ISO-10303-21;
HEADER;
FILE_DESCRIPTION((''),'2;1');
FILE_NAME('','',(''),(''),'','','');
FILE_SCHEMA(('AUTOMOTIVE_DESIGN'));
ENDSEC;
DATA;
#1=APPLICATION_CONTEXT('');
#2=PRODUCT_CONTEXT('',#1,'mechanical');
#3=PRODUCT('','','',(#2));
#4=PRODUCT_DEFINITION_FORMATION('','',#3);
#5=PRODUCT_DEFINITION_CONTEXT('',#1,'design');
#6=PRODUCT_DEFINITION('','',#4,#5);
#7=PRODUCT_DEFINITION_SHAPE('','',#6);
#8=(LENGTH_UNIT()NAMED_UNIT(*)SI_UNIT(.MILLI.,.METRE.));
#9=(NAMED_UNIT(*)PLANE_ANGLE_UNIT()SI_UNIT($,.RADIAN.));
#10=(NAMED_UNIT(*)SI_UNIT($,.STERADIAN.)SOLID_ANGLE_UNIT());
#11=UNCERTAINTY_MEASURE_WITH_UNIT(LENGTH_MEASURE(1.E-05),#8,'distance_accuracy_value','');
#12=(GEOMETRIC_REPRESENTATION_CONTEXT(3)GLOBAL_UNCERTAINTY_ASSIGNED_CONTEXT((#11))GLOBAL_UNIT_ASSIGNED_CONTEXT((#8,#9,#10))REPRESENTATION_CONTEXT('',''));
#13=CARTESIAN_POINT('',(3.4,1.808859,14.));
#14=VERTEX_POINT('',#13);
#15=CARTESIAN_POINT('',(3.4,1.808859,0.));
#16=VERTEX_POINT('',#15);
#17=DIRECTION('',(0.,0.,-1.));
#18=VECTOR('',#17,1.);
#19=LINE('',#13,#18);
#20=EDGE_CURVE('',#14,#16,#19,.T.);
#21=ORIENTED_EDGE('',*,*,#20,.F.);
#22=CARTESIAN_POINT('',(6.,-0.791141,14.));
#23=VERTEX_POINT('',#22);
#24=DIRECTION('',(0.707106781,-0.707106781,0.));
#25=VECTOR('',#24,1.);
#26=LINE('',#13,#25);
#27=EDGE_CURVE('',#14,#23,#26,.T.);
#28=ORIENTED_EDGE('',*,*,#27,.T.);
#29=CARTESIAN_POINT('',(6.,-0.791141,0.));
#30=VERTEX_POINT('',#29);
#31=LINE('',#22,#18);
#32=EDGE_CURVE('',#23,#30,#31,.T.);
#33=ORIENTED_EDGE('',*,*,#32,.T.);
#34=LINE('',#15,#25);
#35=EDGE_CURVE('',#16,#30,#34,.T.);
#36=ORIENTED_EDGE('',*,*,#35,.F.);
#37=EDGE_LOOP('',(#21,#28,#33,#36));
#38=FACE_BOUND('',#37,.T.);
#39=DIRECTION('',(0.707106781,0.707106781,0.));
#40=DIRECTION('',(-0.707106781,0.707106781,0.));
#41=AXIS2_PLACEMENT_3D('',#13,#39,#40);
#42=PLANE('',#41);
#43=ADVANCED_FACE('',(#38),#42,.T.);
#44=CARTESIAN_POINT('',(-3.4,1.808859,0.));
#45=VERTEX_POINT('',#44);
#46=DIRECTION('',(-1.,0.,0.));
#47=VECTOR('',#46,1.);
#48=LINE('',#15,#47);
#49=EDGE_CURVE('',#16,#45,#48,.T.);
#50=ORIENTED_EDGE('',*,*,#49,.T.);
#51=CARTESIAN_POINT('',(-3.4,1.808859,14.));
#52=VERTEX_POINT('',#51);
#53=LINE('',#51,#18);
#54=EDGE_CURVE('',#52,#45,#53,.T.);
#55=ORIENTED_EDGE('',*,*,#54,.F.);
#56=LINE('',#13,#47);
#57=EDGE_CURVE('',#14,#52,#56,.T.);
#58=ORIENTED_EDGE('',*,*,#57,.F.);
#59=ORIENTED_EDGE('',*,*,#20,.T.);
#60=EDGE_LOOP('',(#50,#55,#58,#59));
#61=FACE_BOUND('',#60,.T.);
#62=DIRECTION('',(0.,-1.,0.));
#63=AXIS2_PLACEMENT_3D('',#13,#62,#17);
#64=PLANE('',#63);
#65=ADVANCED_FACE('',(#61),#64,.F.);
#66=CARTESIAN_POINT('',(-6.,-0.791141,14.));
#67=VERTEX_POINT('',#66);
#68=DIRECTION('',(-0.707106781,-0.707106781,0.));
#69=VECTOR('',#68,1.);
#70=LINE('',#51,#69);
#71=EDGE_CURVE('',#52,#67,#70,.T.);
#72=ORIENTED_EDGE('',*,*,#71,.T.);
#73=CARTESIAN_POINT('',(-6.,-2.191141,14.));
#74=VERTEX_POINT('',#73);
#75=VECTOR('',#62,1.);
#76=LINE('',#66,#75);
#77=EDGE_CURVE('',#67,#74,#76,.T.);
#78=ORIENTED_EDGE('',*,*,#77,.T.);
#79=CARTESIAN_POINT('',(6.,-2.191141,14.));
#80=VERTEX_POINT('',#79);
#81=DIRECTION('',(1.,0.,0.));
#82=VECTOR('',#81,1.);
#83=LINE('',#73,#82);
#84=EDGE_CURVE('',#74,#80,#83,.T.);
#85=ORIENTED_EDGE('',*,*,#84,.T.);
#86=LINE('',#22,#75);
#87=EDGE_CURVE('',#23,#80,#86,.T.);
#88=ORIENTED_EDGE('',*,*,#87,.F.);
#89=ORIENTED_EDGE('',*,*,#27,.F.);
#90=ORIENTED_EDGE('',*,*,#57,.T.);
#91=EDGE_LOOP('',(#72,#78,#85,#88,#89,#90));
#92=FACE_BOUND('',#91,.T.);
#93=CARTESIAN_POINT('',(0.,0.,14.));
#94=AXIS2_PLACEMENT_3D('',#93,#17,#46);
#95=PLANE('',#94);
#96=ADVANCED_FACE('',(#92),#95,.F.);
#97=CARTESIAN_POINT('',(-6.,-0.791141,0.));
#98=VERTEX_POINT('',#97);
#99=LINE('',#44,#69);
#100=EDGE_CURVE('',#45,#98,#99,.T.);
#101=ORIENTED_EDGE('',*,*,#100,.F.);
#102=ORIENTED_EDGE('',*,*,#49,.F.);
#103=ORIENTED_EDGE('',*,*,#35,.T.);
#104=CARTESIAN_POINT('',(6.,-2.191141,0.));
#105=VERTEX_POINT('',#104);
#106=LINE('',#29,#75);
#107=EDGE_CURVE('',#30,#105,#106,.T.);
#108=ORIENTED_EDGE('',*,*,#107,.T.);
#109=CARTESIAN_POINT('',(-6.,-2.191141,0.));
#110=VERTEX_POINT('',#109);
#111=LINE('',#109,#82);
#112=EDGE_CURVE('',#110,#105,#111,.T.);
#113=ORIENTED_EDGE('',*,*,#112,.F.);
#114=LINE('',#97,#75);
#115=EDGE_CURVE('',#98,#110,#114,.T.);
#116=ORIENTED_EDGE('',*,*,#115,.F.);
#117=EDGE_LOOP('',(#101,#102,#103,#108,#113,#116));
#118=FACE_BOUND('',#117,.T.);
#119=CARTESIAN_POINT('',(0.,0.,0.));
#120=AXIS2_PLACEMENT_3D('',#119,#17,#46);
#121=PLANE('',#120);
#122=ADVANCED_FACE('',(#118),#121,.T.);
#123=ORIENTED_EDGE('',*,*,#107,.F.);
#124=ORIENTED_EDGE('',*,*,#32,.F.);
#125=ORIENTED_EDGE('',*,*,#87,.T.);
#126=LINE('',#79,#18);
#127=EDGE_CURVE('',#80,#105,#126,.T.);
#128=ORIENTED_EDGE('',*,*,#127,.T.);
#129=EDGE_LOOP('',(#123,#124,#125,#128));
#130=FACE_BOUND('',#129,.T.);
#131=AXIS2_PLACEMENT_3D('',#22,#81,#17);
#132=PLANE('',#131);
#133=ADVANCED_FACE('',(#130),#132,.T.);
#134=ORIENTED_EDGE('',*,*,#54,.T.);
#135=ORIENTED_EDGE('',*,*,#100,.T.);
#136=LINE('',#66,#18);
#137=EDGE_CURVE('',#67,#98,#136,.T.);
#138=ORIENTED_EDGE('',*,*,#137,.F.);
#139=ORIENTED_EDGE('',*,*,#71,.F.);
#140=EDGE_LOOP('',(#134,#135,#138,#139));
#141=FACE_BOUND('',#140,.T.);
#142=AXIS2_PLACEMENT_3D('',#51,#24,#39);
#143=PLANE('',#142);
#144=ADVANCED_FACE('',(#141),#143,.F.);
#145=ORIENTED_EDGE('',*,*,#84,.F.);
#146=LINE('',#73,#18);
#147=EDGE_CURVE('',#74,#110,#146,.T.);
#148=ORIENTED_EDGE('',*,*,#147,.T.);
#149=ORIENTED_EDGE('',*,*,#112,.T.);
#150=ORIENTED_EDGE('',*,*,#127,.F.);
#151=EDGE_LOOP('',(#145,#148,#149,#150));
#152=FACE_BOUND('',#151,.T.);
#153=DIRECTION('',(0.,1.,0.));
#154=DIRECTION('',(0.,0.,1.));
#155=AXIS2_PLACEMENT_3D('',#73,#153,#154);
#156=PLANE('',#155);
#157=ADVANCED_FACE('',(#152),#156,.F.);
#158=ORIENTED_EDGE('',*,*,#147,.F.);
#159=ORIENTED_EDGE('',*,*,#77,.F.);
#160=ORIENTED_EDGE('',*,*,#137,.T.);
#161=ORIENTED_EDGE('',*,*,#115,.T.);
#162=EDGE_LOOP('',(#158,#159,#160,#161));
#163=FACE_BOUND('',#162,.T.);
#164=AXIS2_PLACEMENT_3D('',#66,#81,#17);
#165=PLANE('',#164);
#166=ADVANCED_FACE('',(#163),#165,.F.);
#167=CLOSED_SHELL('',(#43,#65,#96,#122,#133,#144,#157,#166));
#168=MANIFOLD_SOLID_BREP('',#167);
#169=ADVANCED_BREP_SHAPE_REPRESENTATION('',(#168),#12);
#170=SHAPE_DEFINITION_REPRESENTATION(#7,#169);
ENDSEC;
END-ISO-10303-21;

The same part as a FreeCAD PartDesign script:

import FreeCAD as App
import Part
import Sketcher
from FreeCAD import Vector

doc = App.newDocument("Part")
params = doc.addObject("Spreadsheet::Sheet", "Params")
for row, (alias, value) in enumerate([
    ("sketch1_width", "12 mm"),
    ("sketch1_width2", "6.8 mm"),
    ("sketch1_height", "1.4 mm"),
    ("pad1_length", "14 mm"),
], start=1):
    params.set(f"A{row}", alias)
    params.set(f"B{row}", "=" + value)
    params.setAlias(f"B{row}", alias)

body = doc.addObject("PartDesign::Body", "Body")

# Sketch on XY plane
sketch1 = body.newObject("Sketcher::SketchObject", "Sketch")
sketch1.AttachmentSupport = (doc.getObject("XY_Plane"), [""])
sketch1.MapMode = "FlatFace"
sketch1.addGeometry([
    Part.LineSegment(Vector(3.4, 1.8, 0), Vector(-3.4, 1.8, 0)),  # 0
    Part.LineSegment(Vector(-3.4, 1.8, 0), Vector(-6, -0.8, 0)),  # 1
    Part.LineSegment(Vector(-6, -0.8, 0), Vector(-6, -2.2, 0)),  # 2
    Part.LineSegment(Vector(-6, -2.2, 0), Vector(6, -2.2, 0)),  # 3
    Part.LineSegment(Vector(6, -2.2, 0), Vector(6, -0.8, 0)),  # 4
    Part.LineSegment(Vector(6, -0.8, 0), Vector(3.4, 1.8, 0)),  # 5
], False)
sketch1.addConstraint([
    Sketcher.Constraint("Coincident", 0, 2, 1, 1),
    Sketcher.Constraint("Coincident", 1, 2, 2, 1),
    Sketcher.Constraint("Coincident", 2, 2, 3, 1),
    Sketcher.Constraint("Coincident", 3, 2, 4, 1),
    Sketcher.Constraint("Coincident", 4, 2, 5, 1),
    Sketcher.Constraint("Coincident", 5, 2, 0, 1),
    Sketcher.Constraint("Horizontal", 0),
    Sketcher.Constraint("Vertical", 2),
    Sketcher.Constraint("Horizontal", 3),
    Sketcher.Constraint("Vertical", 4),
    Sketcher.Constraint("Symmetric", 1, 2, 4, 2, -2),
    Sketcher.Constraint("Perpendicular", 1, 5),
    Sketcher.Constraint("Equal", 1, 5),
    Sketcher.Constraint("DistanceX", 3, 1, 3, 2, 12.0),
    Sketcher.Constraint("DistanceX", 0, 2, 0, 1, 6.8),
    Sketcher.Constraint("DistanceY", 2, 2, 2, 1, 1.4),
    Sketcher.Constraint("DistanceY", -1, 1, 0, 2, 1.808859),
])
sketch1.setExpression("Constraints[13]", "Params.sketch1_width")
sketch1.setExpression("Constraints[14]", "Params.sketch1_width2")
sketch1.setExpression("Constraints[15]", "Params.sketch1_height")
pad1 = body.newObject("PartDesign::Pad", "Pad")
pad1.Profile = sketch1
pad1.setExpression("Length", "Params.pad1_length")

doc.recompute()
